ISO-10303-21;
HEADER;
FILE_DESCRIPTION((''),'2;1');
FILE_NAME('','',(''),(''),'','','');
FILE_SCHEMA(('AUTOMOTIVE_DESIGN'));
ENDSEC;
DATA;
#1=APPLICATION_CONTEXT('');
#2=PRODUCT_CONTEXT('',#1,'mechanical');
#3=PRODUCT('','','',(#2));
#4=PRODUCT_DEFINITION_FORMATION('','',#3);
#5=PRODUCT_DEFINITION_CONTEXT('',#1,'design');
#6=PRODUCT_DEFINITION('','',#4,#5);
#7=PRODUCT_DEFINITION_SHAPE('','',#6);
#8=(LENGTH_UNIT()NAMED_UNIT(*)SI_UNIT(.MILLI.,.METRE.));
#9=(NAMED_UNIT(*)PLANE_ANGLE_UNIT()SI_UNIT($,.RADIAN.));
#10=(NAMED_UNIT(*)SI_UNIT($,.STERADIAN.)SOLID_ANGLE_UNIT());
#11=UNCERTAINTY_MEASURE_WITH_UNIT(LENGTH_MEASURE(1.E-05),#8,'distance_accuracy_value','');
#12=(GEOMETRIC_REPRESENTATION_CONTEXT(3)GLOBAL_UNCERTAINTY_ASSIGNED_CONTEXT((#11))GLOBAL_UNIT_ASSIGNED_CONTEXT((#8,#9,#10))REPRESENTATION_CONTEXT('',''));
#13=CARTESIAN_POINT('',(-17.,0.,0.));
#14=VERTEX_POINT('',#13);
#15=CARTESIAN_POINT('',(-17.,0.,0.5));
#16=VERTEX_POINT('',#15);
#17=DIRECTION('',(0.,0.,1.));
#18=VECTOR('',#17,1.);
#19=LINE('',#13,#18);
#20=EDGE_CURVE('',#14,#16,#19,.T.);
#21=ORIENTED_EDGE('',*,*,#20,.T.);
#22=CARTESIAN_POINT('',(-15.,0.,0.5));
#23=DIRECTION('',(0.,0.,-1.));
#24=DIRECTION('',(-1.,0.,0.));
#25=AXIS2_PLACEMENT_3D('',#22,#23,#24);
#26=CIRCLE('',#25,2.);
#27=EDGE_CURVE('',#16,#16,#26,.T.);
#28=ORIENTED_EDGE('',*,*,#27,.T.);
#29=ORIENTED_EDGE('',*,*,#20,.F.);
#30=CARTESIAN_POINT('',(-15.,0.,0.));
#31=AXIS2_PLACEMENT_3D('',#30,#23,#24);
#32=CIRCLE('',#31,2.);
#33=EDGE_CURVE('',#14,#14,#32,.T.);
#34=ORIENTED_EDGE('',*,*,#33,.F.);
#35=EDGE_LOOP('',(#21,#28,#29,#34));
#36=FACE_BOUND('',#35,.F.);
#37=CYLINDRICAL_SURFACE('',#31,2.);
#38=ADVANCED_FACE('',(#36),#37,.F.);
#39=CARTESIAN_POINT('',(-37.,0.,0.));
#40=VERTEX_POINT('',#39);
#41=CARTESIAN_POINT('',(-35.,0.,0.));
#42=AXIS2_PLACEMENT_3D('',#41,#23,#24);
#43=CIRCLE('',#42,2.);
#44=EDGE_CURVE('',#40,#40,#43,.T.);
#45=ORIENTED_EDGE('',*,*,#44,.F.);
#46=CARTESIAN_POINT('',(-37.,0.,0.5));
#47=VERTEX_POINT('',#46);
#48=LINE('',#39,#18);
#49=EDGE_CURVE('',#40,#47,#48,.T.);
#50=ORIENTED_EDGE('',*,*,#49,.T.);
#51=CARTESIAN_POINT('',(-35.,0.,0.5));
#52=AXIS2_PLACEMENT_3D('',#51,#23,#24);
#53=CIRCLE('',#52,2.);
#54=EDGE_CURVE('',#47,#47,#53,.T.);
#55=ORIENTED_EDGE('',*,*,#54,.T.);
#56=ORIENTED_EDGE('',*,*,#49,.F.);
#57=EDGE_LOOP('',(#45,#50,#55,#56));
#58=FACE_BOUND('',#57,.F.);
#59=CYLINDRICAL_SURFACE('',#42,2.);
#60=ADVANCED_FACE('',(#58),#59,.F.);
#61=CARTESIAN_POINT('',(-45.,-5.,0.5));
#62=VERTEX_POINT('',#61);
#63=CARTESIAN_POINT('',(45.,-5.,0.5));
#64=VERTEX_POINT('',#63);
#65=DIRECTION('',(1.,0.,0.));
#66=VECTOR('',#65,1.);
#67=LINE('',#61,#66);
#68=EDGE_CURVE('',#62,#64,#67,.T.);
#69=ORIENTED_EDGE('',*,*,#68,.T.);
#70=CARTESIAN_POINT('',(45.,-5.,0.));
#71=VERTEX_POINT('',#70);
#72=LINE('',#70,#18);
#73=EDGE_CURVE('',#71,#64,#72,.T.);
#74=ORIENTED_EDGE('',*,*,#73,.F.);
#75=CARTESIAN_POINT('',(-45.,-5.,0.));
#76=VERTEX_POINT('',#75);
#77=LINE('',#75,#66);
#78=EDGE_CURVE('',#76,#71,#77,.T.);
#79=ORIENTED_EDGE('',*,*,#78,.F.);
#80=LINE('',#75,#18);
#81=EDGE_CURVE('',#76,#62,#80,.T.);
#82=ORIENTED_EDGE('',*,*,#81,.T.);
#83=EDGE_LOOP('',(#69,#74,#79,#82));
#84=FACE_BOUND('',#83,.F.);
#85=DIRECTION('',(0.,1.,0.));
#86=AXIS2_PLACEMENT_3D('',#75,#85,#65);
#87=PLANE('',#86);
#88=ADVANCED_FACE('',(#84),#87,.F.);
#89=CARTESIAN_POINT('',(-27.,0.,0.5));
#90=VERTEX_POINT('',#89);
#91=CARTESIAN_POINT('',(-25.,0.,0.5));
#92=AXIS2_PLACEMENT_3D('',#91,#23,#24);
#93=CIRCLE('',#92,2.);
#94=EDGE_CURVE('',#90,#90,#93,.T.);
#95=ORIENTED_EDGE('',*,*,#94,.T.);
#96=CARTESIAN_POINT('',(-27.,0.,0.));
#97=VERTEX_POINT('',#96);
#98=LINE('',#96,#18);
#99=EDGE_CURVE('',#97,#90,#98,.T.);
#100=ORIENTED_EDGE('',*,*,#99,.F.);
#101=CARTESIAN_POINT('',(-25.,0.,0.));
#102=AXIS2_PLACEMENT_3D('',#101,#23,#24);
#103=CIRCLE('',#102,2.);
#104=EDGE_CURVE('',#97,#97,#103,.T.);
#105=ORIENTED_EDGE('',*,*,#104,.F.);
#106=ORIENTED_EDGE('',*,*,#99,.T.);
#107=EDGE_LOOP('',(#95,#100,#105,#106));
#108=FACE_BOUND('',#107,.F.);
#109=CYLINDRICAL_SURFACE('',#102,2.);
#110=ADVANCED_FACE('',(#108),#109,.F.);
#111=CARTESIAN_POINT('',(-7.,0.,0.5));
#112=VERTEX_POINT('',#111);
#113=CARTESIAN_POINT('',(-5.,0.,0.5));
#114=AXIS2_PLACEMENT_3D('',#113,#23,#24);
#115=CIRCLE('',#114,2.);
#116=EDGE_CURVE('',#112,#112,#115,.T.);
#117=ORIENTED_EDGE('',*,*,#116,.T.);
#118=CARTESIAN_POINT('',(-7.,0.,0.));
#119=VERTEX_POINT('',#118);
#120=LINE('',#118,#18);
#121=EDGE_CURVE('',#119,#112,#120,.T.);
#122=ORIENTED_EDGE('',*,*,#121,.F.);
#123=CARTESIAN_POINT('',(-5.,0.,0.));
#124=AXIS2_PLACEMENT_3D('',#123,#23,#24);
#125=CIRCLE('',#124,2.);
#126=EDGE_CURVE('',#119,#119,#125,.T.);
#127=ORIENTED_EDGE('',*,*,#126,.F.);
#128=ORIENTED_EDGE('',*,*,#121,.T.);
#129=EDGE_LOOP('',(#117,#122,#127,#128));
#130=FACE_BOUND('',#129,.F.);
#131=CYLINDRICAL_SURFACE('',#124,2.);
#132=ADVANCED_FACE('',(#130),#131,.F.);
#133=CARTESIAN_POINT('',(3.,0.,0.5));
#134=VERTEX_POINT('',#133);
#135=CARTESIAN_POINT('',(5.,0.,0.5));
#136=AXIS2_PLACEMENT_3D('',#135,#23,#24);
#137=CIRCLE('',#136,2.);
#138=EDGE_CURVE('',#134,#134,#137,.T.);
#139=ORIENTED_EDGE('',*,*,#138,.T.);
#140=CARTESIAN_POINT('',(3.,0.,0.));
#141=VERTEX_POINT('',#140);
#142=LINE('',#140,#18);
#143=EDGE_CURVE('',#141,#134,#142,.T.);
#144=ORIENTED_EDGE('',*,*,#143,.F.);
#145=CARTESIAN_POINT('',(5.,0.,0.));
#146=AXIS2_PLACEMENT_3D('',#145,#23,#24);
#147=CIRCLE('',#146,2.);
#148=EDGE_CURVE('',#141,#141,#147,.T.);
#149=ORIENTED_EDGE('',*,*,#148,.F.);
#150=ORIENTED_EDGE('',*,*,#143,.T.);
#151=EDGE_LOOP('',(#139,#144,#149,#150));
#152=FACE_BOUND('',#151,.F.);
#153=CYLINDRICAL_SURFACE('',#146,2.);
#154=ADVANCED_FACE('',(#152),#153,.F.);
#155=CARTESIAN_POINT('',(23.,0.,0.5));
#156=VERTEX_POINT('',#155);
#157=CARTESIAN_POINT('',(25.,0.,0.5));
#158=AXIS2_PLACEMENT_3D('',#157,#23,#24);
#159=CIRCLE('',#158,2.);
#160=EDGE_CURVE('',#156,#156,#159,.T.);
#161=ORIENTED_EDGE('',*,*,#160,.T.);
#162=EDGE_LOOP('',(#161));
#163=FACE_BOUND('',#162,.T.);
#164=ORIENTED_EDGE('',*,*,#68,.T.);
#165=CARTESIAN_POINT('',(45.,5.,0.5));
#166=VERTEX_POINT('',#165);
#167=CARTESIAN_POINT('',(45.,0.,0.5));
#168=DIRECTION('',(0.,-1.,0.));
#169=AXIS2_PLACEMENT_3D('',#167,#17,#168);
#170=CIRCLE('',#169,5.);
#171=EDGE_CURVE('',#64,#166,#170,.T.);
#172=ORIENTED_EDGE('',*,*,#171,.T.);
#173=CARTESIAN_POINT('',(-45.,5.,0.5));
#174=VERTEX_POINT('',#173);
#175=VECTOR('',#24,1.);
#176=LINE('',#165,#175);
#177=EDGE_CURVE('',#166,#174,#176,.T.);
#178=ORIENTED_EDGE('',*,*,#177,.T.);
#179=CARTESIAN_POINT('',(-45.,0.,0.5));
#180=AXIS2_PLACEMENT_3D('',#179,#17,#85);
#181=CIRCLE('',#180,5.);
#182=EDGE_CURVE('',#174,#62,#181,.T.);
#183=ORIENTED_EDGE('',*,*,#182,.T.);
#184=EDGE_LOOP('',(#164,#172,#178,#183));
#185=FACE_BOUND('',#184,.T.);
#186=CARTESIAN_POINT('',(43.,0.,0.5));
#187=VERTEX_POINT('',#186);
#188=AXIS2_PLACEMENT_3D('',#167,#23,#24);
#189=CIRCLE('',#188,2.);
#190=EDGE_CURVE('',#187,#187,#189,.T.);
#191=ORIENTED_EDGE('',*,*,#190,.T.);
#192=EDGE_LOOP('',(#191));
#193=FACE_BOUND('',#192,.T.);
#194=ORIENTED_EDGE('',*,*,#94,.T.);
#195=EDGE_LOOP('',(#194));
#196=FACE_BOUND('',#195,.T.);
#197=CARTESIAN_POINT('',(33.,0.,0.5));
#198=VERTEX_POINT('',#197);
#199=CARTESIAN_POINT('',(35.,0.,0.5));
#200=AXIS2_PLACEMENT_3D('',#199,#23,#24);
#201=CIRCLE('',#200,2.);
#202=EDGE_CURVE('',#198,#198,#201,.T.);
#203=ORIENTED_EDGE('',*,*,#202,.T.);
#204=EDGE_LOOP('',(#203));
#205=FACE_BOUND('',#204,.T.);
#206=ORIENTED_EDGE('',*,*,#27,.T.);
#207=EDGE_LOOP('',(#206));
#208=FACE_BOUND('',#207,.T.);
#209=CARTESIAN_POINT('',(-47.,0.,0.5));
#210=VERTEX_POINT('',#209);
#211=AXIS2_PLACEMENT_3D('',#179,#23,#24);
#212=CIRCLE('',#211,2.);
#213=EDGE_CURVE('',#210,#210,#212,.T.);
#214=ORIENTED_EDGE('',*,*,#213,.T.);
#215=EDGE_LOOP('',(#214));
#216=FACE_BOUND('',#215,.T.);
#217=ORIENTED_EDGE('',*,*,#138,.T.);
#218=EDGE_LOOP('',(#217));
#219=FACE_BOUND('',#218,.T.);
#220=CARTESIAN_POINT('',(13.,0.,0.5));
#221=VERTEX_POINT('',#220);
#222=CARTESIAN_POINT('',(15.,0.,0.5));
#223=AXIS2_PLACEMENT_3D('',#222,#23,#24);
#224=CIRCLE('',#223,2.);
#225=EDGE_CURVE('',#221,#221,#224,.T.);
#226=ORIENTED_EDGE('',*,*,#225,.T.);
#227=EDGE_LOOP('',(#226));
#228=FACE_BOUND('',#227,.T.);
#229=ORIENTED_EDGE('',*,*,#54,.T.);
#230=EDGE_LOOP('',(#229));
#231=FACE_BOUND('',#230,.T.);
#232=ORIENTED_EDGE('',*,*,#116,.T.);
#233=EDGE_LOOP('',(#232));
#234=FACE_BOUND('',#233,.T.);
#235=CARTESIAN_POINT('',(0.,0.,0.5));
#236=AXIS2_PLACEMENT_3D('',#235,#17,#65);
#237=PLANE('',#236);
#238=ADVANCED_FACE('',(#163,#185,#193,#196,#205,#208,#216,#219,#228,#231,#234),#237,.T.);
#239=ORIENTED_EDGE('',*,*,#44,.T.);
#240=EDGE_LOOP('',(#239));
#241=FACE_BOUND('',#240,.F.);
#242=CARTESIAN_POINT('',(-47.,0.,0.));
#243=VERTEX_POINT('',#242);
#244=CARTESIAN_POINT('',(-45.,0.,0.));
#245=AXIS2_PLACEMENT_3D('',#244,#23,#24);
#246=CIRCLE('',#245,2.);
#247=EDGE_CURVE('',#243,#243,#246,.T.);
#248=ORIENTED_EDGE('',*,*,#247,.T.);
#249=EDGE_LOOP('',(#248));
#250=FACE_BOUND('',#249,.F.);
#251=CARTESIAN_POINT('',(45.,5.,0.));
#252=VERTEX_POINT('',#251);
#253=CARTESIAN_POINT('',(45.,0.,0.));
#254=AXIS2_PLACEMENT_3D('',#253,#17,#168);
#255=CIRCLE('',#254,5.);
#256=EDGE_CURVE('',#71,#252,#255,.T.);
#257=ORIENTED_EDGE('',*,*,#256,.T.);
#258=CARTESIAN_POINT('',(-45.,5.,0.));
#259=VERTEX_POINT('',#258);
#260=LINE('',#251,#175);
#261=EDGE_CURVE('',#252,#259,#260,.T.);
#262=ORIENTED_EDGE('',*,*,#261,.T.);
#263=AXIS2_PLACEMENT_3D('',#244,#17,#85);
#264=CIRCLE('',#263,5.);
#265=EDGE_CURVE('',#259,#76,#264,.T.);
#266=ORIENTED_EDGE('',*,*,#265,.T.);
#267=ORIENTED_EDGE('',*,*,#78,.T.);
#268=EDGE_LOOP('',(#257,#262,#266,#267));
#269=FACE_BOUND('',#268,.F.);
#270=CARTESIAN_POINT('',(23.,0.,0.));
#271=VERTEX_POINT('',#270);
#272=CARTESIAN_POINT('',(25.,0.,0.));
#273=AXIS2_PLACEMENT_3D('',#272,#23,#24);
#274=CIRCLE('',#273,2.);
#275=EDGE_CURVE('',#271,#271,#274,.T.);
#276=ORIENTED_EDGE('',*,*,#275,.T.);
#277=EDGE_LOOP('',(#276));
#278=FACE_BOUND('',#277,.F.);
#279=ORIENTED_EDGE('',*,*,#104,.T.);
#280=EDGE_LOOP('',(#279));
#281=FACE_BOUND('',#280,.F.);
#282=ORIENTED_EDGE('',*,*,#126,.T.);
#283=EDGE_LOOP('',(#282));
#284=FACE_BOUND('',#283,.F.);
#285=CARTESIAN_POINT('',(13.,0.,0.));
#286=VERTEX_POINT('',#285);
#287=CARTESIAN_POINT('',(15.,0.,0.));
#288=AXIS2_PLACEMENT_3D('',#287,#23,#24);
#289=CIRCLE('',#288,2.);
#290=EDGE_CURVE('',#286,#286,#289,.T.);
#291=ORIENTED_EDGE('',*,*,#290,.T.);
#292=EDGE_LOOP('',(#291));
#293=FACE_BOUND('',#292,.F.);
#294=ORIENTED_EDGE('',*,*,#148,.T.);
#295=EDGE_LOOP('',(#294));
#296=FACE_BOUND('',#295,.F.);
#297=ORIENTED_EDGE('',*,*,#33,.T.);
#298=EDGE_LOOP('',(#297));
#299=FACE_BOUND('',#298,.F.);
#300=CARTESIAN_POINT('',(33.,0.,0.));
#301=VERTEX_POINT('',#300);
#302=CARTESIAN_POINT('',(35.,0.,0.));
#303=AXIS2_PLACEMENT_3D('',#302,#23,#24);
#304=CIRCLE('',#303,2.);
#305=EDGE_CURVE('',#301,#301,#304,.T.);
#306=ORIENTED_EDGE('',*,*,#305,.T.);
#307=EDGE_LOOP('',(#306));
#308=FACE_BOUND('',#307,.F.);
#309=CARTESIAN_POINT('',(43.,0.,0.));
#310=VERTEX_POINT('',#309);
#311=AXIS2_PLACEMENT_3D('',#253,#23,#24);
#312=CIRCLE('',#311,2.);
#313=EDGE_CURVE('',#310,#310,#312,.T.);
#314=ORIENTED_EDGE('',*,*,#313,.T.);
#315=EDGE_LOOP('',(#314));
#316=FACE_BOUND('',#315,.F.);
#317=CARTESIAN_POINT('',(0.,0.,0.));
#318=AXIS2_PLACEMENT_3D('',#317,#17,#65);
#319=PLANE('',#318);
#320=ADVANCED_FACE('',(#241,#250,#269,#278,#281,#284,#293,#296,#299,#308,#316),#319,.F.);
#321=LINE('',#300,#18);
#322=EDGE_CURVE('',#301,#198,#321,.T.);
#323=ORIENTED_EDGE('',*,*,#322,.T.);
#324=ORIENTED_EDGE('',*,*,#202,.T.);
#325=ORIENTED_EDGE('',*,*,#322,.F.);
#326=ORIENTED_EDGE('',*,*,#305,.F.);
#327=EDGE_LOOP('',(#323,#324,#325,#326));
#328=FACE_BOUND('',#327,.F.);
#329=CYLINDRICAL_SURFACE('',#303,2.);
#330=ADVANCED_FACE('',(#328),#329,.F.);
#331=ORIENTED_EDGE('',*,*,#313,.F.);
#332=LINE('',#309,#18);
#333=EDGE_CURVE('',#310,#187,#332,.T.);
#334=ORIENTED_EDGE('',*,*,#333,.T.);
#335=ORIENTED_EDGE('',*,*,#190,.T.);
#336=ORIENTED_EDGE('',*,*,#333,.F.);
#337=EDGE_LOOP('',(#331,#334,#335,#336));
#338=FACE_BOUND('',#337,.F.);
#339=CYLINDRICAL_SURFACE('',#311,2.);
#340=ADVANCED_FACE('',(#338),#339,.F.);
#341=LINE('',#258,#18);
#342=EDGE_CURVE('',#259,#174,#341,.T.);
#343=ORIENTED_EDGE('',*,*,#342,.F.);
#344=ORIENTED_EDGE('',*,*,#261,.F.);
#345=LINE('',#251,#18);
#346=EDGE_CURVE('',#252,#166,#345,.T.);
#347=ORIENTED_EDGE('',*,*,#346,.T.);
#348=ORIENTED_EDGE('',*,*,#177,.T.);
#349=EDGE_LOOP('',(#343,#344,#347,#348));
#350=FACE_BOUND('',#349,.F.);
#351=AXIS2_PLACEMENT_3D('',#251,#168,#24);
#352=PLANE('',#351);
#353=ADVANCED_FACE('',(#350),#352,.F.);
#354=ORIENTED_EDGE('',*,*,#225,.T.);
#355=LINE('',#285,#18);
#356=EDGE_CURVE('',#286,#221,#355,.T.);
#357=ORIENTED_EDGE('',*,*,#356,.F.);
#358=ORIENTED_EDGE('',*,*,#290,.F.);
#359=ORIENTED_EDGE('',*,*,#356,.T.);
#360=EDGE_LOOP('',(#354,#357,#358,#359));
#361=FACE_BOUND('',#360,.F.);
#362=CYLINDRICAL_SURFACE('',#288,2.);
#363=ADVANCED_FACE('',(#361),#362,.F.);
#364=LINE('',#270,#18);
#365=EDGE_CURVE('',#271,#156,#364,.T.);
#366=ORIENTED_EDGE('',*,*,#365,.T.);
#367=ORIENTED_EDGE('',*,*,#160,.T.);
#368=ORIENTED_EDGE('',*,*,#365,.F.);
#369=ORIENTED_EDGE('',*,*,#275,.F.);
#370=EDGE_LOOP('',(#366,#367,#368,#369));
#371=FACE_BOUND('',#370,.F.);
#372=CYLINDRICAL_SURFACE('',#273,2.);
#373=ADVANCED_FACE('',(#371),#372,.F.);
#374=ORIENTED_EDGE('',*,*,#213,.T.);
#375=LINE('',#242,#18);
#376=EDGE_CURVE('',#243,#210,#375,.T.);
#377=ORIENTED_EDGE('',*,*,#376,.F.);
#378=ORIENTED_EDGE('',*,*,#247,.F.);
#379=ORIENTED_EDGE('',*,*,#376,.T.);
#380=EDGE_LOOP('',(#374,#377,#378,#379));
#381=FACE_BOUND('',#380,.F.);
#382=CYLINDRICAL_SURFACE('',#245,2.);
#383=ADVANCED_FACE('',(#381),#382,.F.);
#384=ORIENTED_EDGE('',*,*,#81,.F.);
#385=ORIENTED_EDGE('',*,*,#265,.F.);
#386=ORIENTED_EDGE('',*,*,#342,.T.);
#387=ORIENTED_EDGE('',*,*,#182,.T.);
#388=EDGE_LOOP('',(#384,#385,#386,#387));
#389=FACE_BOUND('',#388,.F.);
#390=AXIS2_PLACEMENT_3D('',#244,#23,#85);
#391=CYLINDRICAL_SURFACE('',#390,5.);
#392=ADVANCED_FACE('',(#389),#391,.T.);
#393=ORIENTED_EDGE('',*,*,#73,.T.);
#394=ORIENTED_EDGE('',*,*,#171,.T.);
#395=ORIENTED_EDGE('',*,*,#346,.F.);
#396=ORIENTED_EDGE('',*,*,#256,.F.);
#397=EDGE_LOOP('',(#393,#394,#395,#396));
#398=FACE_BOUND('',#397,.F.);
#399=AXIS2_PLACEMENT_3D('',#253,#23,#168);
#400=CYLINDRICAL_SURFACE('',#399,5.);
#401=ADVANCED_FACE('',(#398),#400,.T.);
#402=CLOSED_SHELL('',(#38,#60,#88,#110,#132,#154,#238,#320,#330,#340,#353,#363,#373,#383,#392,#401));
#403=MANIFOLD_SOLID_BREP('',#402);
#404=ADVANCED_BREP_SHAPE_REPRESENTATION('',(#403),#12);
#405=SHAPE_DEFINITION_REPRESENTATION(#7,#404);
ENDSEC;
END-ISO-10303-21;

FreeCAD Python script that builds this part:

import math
import FreeCAD as App
import Part
import Sketcher

V = App.Vector
Q = App.Units.Quantity

doc = App.newDocument("Part")
params = doc.addObject("Spreadsheet::Sheet", "Params")
for row, (alias, value) in enumerate([
    ("sketch1_radius", "5 mm"),
    ("sketch1_width", "90 mm"),
    ("pad1_length", "0.5 mm"),
    ("sketch2_diameter", "4 mm"),
    ("linearpattern_pitch", "10 mm"),
], start=1):
    params.set(f"A{row}", alias)
    params.set(f"B{row}", "=" + value)
    params.setAlias(f"B{row}", alias)

body = doc.addObject("PartDesign::Body", "Body")

# Sketch on XY plane
sketch1 = body.newObject("Sketcher::SketchObject", "Sketch")
sketch1.AttachmentSupport = (doc.getObject("XY_Plane"), [""])
sketch1.MapMode = "FlatFace"
sketch1.addGeometry([
    Part.ArcOfCircle(Part.Circle(V(-45, 0, 0), V(0, 0, 1), 5), math.radians(90), math.radians(270)),
    Part.LineSegment(V(-45, -5, 0), V(45, -5, 0)),
    Part.ArcOfCircle(Part.Circle(V(45, 0, 0), V(0, 0, 1), 5), math.radians(-90), math.radians(90)),
    Part.LineSegment(V(45, 5, 0), V(-45, 5, 0)),
], False)
sketch1.addConstraint([
    Sketcher.Constraint("Tangent", 0, 2, 1, 1),
    Sketcher.Constraint("Tangent", 1, 2, 2, 1),
    Sketcher.Constraint("Tangent", 2, 2, 3, 1),
    Sketcher.Constraint("Tangent", 3, 2, 0, 1),
    Sketcher.Constraint("Horizontal", 1),
    Sketcher.Constraint("Horizontal", 3),
    Sketcher.Constraint("Symmetric", 0, 3, 2, 3, -1, 1),
    Sketcher.Constraint("Radius", 0, Q("5 mm")),
    Sketcher.Constraint("DistanceX", 1, 1, 1, 2, Q("90 mm")),
])
sketch1.setExpression("Constraints[7]", "Params.sketch1_radius")
sketch1.setExpression("Constraints[8]", "Params.sketch1_width")
pad1 = body.newObject("PartDesign::Pad", "Pad")
pad1.Profile = sketch1
pad1.setExpression("Length", "Params.pad1_length")

# Sketch on XY plane
sketch2 = body.newObject("Sketcher::SketchObject", "Sketch001")
sketch2.AttachmentSupport = (doc.getObject("XY_Plane"), [""])
sketch2.MapMode = "FlatFace"
sketch2.addGeometry(Part.Circle(V(-45, 0, 0), V(0, 0, 1), 2), False)
sketch2.addConstraint([
    Sketcher.Constraint("PointOnObject", 0, 3, -1),
    Sketcher.Constraint("Diameter", 0, Q("4 mm")),
    Sketcher.Constraint("DistanceX", 0, 3, -1, 1, Q("45 mm")),
])
sketch2.setExpression("Constraints[1]", "Params.sketch2_diameter")
pocket1 = body.newObject("PartDesign::Pocket", "Pocket")
pocket1.Profile = sketch2
pocket1.Type = "ThroughAll"
pocket1.Reversed = True
doc.recompute()

linearpattern = body.newObject("PartDesign::LinearPattern", "LinearPattern")
linearpattern.Originals = [pocket1]
linearpattern.Direction = (doc.getObject("X_Axis"), [""])
linearpattern.Mode = "offset"
linearpattern.setExpression("Offset", "Params.linearpattern_pitch")
linearpattern.Occurrences = 10
body.Tip = linearpattern

doc.recompute()
